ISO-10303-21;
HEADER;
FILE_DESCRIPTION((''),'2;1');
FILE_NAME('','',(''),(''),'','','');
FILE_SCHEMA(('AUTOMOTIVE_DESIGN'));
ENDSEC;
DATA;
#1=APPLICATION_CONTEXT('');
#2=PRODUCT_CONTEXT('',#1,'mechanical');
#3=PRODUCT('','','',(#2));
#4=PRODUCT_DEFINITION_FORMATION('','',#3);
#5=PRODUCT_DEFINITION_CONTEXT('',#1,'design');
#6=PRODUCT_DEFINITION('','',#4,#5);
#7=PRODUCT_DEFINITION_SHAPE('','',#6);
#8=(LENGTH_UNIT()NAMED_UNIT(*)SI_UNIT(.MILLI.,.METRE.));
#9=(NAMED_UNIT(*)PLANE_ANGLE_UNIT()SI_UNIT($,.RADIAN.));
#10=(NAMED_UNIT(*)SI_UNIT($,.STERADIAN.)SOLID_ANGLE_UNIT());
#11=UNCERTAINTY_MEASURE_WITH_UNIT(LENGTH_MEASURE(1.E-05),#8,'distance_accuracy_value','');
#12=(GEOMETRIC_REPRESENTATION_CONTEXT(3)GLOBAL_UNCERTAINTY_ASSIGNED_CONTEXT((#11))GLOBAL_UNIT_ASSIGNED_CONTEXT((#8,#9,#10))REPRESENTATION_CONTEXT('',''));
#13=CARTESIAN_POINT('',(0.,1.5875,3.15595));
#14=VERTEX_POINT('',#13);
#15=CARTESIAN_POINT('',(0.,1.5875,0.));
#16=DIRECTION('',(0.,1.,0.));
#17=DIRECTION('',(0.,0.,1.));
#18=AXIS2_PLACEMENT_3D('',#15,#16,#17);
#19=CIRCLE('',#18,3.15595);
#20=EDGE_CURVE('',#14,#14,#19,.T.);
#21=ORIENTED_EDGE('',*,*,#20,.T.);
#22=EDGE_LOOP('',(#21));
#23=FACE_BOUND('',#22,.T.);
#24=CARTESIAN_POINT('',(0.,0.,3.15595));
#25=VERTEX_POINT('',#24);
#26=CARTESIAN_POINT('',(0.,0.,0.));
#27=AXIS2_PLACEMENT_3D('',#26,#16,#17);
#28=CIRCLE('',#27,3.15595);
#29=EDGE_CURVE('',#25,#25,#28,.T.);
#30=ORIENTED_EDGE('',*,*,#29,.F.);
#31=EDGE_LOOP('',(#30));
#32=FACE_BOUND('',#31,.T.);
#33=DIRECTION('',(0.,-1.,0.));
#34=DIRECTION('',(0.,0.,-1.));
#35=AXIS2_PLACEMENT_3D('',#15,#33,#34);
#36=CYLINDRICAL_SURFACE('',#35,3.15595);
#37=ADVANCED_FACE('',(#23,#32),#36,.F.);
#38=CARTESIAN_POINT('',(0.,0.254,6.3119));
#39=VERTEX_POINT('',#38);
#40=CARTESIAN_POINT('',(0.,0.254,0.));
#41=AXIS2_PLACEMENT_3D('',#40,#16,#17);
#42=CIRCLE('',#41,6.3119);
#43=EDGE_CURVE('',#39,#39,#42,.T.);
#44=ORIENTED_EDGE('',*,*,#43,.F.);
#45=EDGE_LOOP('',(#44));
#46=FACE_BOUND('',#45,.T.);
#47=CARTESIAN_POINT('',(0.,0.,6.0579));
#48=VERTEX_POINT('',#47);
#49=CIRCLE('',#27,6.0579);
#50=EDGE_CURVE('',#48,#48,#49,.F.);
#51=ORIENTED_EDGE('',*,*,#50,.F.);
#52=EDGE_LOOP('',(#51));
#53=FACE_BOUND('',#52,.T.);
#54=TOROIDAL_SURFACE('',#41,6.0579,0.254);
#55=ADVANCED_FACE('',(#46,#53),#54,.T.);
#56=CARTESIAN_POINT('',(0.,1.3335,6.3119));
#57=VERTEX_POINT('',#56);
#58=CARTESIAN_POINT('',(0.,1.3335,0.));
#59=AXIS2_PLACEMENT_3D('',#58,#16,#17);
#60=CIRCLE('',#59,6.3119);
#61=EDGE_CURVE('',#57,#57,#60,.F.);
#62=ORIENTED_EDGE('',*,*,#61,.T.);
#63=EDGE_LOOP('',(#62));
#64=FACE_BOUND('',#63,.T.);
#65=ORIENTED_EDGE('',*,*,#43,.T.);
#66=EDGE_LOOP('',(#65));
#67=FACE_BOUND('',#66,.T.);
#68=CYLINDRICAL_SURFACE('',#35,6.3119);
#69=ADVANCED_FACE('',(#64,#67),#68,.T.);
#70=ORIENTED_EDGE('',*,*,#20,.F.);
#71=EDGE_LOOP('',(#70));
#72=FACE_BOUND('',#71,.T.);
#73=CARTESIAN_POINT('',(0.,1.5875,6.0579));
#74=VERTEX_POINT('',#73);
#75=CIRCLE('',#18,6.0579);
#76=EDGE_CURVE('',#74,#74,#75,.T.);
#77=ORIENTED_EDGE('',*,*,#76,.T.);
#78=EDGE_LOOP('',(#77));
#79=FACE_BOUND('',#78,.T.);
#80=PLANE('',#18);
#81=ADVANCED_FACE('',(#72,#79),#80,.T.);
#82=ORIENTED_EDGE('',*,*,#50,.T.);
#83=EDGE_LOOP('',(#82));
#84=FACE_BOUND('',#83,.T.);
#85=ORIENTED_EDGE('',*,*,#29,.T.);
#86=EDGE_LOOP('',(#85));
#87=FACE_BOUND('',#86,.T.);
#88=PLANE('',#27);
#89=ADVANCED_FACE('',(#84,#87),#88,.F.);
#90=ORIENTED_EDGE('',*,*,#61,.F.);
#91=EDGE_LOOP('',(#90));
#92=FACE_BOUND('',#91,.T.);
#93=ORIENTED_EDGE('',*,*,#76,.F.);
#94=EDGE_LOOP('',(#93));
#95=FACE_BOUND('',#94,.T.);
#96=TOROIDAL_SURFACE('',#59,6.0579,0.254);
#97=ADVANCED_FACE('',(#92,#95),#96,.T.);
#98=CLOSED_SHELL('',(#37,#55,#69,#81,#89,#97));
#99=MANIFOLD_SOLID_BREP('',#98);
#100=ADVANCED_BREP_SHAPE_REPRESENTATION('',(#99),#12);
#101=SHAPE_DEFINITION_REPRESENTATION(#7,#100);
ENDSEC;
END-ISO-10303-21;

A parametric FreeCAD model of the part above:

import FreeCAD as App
import Part
import Sketcher

V = App.Vector
Q = App.Units.Quantity


def edges_at(feature, points):
    """Names of the edges that pass closest to the given points."""
    edges = feature.Shape.Edges
    near = lambda p: min(range(len(edges)), key=lambda i: edges[i].distToShape(Part.Vertex(*p))[0])
    return sorted({f"Edge{near(p) + 1}" for p in points})

doc = App.newDocument("Part")
params = doc.addObject("Spreadsheet::Sheet", "Params")
for row, (alias, value) in enumerate([
    ("sketch1_diameter", "0.497 in"),
    ("pad1_length", "0.0625 in"),
    ("fillet_radius", "0.01 in"),
], start=1):
    params.set(f"A{row}", alias)
    params.set(f"B{row}", "=" + value)
    params.setAlias(f"B{row}", alias)

body = doc.addObject("PartDesign::Body", "Body")

# Sketch on XZ plane
sketch1 = body.newObject("Sketcher::SketchObject", "Sketch")
sketch1.AttachmentSupport = (doc.getObject("XZ_Plane"), [""])
sketch1.MapMode = "FlatFace"
sketch1.addGeometry([
    Part.Circle(V(0, 0, 0), V(0, 0, 1), 6.3),
    Part.Circle(V(0, 0, 0), V(0, 0, 1), 3.2),
], False)
sketch1.addConstraint([
    Sketcher.Constraint("Coincident", 0, 3, -1, 1),
    Sketcher.Constraint("Coincident", 1, 3, -1, 1),
    Sketcher.Constraint("Diameter", 0, Q("0.497 in")),
    Sketcher.Constraint("Diameter", 1, Q("0.2485 in")),
])
sketch1.setExpression("Constraints[2]", "Params.sketch1_diameter")
pad1 = body.newObject("PartDesign::Pad", "Pad")
pad1.Profile = sketch1
pad1.setExpression("Length", "Params.pad1_length")
pad1.Reversed = True
doc.recompute()

fillet = body.newObject("PartDesign::Fillet", "Fillet")
fillet.Base = (pad1, edges_at(pad1, [(0, 0, -6.312), (0, 1.587, -6.312)]))
fillet.setExpression("Radius", "Params.fillet_radius")

doc.recompute()
